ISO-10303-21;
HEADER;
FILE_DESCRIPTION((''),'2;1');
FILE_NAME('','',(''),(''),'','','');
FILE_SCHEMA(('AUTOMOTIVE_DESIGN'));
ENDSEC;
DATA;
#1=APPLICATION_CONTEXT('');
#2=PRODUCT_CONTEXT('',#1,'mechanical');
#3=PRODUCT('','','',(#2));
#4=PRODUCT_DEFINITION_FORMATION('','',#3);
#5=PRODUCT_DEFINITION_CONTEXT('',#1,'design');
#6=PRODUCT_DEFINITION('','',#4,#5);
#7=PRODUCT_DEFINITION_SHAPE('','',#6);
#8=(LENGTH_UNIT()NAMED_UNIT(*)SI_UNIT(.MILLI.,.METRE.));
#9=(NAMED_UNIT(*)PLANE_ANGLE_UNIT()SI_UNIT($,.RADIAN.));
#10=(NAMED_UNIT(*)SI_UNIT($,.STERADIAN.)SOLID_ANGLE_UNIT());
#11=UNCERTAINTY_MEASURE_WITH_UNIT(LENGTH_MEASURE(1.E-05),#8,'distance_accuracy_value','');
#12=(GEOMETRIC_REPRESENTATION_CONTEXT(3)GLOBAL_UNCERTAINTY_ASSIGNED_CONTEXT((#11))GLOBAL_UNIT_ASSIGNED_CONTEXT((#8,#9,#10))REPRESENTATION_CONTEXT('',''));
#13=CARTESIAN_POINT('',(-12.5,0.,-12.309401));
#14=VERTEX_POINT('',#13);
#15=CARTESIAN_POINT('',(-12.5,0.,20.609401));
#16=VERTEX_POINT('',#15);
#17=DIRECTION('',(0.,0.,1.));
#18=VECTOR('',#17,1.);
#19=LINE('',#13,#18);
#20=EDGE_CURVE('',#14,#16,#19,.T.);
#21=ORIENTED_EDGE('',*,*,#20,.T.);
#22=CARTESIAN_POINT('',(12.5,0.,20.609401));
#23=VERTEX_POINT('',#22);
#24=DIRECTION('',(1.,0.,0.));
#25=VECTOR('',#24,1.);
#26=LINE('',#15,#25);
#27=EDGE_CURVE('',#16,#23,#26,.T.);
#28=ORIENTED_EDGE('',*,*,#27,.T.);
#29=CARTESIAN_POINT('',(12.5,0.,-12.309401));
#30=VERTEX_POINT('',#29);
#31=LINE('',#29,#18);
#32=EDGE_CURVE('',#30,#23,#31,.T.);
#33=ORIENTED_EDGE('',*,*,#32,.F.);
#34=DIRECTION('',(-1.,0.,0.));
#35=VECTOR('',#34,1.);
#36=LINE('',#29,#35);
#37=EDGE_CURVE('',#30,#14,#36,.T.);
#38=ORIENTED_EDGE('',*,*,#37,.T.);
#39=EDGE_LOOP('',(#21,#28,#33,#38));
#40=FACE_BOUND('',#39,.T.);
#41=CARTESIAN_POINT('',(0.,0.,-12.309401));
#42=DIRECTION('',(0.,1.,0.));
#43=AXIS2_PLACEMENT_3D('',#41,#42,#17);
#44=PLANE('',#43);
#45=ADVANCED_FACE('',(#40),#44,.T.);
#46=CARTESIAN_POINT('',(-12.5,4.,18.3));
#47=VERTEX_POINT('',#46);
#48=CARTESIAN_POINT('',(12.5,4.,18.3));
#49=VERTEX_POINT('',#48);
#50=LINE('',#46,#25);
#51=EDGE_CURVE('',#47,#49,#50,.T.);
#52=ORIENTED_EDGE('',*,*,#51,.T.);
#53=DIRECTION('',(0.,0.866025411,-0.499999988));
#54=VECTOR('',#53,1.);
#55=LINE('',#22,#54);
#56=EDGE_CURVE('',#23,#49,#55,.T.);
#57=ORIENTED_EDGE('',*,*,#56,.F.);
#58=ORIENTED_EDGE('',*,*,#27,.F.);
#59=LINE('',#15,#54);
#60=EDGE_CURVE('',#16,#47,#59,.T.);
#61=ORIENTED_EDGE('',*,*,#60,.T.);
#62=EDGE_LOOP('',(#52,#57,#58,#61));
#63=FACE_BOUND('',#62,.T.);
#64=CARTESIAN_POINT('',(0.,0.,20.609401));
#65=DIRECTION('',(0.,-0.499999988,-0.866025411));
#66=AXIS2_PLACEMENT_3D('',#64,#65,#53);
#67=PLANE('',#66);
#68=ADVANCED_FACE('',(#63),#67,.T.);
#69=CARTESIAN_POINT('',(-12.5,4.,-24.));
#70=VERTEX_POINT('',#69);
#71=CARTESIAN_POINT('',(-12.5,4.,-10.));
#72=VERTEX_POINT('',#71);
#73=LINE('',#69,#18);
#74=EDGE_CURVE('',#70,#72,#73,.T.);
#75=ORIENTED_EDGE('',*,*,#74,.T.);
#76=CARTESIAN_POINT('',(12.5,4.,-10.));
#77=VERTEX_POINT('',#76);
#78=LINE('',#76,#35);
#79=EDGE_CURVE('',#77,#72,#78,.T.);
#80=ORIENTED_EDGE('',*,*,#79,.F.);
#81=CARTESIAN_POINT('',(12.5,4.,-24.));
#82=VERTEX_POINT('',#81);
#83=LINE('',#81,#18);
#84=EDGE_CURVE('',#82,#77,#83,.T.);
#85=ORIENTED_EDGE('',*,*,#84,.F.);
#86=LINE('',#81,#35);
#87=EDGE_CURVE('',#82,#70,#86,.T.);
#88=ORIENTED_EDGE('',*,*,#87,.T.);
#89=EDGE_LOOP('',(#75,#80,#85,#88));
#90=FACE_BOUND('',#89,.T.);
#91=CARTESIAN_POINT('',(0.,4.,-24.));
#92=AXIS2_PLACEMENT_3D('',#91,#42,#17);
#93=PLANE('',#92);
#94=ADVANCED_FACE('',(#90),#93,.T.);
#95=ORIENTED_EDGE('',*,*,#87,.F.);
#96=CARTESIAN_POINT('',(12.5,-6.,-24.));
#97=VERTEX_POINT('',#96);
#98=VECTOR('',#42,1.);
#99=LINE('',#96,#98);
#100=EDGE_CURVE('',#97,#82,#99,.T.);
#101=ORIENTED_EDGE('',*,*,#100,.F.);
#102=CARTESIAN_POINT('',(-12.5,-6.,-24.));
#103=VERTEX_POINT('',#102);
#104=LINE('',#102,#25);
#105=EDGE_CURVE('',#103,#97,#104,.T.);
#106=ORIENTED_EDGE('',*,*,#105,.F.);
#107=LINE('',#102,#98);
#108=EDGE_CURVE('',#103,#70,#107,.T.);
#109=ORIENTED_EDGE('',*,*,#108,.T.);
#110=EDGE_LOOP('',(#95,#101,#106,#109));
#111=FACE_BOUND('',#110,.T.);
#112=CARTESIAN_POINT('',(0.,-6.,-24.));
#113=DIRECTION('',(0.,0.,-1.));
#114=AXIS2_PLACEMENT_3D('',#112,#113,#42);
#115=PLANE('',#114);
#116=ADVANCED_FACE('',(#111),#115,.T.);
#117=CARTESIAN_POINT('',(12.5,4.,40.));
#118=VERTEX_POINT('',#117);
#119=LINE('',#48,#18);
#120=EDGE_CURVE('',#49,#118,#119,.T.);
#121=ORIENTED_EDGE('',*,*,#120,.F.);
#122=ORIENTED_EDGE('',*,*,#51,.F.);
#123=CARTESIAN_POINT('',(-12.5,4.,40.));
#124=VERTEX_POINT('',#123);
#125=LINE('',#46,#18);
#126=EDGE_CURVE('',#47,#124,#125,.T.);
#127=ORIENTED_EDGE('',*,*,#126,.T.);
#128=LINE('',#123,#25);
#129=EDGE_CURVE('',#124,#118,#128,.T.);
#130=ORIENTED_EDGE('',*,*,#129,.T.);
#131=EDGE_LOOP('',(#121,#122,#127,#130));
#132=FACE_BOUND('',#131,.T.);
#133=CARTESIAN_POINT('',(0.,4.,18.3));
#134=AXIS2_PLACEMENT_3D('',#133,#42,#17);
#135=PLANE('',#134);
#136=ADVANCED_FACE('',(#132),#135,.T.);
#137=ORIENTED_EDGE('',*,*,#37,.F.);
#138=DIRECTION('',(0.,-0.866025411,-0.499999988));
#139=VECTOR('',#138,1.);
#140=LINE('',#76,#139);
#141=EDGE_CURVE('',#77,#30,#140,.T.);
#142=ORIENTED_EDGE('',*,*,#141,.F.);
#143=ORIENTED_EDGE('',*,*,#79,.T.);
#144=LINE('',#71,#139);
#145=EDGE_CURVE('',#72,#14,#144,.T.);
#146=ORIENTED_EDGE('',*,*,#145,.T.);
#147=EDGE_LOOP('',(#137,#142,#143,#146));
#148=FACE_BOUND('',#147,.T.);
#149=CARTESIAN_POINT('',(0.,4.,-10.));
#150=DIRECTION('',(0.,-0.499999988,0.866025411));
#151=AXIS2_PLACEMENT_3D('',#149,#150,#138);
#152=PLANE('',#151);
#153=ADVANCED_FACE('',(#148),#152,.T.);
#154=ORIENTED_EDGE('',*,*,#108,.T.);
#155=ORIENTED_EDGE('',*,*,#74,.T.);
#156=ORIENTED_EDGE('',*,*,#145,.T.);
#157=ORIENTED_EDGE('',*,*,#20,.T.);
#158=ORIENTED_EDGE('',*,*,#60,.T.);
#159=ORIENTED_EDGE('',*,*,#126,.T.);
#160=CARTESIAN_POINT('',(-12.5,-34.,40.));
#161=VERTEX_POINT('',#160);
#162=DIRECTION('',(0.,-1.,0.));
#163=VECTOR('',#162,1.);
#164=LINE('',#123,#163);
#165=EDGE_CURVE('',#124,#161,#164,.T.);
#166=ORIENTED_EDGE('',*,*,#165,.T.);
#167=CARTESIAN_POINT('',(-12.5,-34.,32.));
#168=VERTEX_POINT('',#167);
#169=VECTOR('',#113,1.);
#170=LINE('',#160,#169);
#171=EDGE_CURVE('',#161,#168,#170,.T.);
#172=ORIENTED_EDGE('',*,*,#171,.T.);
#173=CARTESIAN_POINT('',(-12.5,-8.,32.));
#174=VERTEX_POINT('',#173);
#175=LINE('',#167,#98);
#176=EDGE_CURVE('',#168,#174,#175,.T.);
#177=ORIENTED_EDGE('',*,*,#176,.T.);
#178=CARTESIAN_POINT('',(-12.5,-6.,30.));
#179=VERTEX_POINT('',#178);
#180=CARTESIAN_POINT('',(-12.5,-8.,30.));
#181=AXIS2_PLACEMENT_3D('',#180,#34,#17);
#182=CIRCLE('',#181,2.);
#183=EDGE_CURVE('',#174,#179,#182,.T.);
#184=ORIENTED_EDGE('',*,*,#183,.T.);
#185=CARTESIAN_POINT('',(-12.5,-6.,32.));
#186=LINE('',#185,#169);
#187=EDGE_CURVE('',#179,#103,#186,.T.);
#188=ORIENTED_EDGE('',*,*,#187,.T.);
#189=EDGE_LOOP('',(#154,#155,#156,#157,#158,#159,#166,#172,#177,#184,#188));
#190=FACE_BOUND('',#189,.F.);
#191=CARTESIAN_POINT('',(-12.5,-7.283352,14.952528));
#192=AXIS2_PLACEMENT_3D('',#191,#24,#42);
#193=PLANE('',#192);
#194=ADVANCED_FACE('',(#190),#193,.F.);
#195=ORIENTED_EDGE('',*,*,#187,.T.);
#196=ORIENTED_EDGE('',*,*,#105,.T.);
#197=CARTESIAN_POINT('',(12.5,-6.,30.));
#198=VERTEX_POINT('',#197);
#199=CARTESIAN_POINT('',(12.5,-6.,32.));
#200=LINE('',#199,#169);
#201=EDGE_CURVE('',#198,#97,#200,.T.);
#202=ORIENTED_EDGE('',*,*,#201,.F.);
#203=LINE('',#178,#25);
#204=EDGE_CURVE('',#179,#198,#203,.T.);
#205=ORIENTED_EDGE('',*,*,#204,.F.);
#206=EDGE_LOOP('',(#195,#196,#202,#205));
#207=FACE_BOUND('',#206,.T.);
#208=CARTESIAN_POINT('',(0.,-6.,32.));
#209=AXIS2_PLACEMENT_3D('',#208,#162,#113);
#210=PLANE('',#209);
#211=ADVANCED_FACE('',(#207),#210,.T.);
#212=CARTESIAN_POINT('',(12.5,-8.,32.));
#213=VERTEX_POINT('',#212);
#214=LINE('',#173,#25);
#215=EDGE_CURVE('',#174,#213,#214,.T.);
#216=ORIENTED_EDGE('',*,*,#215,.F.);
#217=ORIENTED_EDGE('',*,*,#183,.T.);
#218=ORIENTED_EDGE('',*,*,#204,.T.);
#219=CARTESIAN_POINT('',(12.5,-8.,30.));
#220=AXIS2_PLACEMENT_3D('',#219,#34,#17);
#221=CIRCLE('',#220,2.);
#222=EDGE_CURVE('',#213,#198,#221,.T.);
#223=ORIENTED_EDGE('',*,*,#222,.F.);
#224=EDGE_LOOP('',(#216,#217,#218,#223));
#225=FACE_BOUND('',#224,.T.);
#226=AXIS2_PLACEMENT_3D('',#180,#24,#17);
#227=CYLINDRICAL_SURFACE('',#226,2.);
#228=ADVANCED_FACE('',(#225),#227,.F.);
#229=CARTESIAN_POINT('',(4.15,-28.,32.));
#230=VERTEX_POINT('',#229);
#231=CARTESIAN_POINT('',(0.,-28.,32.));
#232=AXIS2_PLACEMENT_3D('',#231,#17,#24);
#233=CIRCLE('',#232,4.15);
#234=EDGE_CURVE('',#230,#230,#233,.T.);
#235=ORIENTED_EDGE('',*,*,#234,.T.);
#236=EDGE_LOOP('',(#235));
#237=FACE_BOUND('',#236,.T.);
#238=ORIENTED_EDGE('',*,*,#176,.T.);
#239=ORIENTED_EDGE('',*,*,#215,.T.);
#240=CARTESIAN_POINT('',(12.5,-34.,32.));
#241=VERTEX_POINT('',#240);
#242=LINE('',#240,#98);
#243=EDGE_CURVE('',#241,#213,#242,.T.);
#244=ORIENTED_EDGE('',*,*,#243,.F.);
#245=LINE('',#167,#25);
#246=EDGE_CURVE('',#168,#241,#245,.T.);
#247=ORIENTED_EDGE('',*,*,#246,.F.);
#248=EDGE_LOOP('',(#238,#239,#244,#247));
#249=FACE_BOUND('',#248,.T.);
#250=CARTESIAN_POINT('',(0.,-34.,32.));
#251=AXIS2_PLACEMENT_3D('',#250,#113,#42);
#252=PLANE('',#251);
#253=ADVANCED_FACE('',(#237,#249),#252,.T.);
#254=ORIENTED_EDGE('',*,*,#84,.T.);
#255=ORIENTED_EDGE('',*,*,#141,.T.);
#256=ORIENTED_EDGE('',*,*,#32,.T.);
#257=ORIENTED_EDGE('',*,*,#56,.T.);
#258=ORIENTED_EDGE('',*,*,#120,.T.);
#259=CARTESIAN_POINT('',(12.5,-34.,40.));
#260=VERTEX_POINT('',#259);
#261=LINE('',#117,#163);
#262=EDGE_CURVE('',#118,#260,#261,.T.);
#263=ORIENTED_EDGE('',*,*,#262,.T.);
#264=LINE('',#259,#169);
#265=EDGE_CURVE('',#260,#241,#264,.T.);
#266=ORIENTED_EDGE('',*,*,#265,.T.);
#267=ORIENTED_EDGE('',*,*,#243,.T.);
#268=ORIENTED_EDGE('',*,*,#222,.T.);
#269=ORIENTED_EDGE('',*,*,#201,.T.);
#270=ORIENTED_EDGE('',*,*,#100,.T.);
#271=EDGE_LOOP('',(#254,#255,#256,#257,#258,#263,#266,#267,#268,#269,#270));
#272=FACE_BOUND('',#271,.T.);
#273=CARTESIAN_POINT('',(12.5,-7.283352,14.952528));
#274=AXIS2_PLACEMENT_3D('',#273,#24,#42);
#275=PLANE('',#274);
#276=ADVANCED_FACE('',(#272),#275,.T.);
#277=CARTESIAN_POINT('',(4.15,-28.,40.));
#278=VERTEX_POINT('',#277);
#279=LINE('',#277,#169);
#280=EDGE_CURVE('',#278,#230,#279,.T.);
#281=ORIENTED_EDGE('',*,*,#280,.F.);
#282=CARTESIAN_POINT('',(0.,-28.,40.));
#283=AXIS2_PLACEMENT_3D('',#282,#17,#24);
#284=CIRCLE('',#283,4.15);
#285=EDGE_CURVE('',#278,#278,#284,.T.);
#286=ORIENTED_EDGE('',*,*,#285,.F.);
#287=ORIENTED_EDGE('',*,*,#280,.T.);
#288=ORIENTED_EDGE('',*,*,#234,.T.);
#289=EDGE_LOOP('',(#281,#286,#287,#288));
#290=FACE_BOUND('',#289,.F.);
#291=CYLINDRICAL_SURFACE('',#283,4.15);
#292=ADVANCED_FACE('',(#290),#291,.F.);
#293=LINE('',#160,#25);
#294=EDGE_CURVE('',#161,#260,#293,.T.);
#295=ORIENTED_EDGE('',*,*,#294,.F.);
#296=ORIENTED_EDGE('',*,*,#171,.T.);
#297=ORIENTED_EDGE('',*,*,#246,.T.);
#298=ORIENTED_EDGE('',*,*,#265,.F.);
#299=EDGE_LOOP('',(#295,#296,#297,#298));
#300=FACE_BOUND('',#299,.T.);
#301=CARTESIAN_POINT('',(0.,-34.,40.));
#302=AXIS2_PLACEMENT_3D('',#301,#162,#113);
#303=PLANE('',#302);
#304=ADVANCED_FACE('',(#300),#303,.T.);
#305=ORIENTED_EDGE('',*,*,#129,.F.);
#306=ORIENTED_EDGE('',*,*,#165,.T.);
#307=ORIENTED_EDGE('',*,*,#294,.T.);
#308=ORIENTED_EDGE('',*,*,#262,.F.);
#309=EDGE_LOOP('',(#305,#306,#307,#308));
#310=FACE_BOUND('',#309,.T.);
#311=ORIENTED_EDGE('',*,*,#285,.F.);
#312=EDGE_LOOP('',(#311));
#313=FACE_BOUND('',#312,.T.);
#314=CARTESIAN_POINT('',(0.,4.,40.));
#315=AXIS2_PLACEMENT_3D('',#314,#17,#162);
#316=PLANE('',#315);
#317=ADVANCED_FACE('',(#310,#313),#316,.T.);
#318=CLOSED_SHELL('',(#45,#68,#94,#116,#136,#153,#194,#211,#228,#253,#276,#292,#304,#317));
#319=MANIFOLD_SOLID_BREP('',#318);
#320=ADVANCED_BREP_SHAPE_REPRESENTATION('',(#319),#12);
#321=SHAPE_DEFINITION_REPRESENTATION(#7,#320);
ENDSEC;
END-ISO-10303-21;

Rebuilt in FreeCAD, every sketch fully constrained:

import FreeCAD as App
import Part
import Sketcher

V = App.Vector
Q = App.Units.Quantity


def edges_at(feature, points):
    """Names of the edges that pass closest to the given points."""
    edges = feature.Shape.Edges
    near = lambda p: min(range(len(edges)), key=lambda i: edges[i].distToShape(Part.Vertex(*p))[0])
    return sorted({f"Edge{near(p) + 1}" for p in points})


def add_polygon(sketch, points):
    """Adds a closed chain of lines whose ends are joined by coincident constraints."""
    first, n = sketch.GeometryCount, len(points)
    for a, b in zip(points, points[1:] + points[:1]):
        sketch.addGeometry(Part.LineSegment(App.Vector(*a, 0), App.Vector(*b, 0)), False)
    for i in range(n):
        sketch.addConstraint(Sketcher.Constraint("Coincident", first + i, 2, first + (i + 1) % n, 1))

doc = App.newDocument("Part")
body = doc.addObject("PartDesign::Body", "Body")

sketch1 = doc.addObject("Sketcher::SketchObject", "Sketch")
body.addObject(sketch1)
sketch1.AttachmentSupport = (doc.YZ_Plane, [""])
sketch1.MapMode = "FlatFace"
add_polygon(sketch1, [(0, -12.309401), (0, 20.609401), (4, 18.3), (4, 40), (-34, 40), (-34, 32), (-6, 32), (-6, -24), (4, -24), (4, -10)])
sketch1.addConstraint([
    Sketcher.Constraint("Vertical", 0),
    Sketcher.Constraint("Vertical", 2),
    Sketcher.Constraint("Horizontal", 3),
    Sketcher.Constraint("Vertical", 4),
    Sketcher.Constraint("Horizontal", 5),
    Sketcher.Constraint("Vertical", 6),
    Sketcher.Constraint("Horizontal", 7),
    Sketcher.Constraint("Vertical", 8),
    Sketcher.Constraint("PointOnObject", 0, 2, -2),
    Sketcher.Constraint("Vertical", 2, 2, 7, 2),
    Sketcher.Constraint("Equal", 1, 9),
    Sketcher.Constraint("DistanceX", 3, 2, 3, 1, Q("38 mm")),
    Sketcher.Constraint("DistanceX", 5, 1, 5, 2, Q("28 mm")),
    Sketcher.Constraint("DistanceY", 4, 2, 4, 1, Q("8 mm")),
    Sketcher.Constraint("DistanceY", 6, 2, 6, 1, Q("56 mm")),
    Sketcher.Constraint("DistanceY", 8, 1, 8, 2, Q("14 mm")),
    Sketcher.Constraint("Angle", 1, Q("-29.999999 deg")),
    Sketcher.Constraint("DistanceY", 2, 1, 2, 2, Q("21.7 mm")),
    Sketcher.Constraint("DistanceX", -1, 1, 1, 2, Q("4 mm")),
    Sketcher.Constraint("DistanceY", -1, 1, 2, 2, Q("40 mm")),
])
pad1 = doc.addObject("PartDesign::Pad", "Pad")
body.addObject(pad1)
pad1.Profile = sketch1
pad1.Length = 25
pad1.Midplane = True

sketch2 = doc.addObject("Sketcher::SketchObject", "Sketch001")
body.addObject(sketch2)
sketch2.AttachmentSupport = (doc.XY_Plane, [""])
sketch2.MapMode = "FlatFace"
sketch2.AttachmentOffset = App.Placement(V(0, 0, 40), App.Rotation())
sketch2.addGeometry(Part.Circle(V(0, -28, 0), V(0, 0, 1), 4.15), False)
sketch2.addConstraint([
    Sketcher.Constraint("PointOnObject", 0, 3, -2),
    Sketcher.Constraint("Diameter", 0, Q("8.3 mm")),
    Sketcher.Constraint("DistanceY", 0, 3, -1, 1, Q("28 mm")),
])
pocket1 = doc.addObject("PartDesign::Pocket", "Pocket")
body.addObject(pocket1)
pocket1.Profile = sketch2
pocket1.Type = "ThroughAll"
doc.recompute()

fillet = doc.addObject("PartDesign::Fillet", "Fillet")
body.addObject(fillet)
fillet.Base = (pocket1, edges_at(pocket1, [(0, -6, 32)]))
fillet.Radius = 2

doc.recompute()
